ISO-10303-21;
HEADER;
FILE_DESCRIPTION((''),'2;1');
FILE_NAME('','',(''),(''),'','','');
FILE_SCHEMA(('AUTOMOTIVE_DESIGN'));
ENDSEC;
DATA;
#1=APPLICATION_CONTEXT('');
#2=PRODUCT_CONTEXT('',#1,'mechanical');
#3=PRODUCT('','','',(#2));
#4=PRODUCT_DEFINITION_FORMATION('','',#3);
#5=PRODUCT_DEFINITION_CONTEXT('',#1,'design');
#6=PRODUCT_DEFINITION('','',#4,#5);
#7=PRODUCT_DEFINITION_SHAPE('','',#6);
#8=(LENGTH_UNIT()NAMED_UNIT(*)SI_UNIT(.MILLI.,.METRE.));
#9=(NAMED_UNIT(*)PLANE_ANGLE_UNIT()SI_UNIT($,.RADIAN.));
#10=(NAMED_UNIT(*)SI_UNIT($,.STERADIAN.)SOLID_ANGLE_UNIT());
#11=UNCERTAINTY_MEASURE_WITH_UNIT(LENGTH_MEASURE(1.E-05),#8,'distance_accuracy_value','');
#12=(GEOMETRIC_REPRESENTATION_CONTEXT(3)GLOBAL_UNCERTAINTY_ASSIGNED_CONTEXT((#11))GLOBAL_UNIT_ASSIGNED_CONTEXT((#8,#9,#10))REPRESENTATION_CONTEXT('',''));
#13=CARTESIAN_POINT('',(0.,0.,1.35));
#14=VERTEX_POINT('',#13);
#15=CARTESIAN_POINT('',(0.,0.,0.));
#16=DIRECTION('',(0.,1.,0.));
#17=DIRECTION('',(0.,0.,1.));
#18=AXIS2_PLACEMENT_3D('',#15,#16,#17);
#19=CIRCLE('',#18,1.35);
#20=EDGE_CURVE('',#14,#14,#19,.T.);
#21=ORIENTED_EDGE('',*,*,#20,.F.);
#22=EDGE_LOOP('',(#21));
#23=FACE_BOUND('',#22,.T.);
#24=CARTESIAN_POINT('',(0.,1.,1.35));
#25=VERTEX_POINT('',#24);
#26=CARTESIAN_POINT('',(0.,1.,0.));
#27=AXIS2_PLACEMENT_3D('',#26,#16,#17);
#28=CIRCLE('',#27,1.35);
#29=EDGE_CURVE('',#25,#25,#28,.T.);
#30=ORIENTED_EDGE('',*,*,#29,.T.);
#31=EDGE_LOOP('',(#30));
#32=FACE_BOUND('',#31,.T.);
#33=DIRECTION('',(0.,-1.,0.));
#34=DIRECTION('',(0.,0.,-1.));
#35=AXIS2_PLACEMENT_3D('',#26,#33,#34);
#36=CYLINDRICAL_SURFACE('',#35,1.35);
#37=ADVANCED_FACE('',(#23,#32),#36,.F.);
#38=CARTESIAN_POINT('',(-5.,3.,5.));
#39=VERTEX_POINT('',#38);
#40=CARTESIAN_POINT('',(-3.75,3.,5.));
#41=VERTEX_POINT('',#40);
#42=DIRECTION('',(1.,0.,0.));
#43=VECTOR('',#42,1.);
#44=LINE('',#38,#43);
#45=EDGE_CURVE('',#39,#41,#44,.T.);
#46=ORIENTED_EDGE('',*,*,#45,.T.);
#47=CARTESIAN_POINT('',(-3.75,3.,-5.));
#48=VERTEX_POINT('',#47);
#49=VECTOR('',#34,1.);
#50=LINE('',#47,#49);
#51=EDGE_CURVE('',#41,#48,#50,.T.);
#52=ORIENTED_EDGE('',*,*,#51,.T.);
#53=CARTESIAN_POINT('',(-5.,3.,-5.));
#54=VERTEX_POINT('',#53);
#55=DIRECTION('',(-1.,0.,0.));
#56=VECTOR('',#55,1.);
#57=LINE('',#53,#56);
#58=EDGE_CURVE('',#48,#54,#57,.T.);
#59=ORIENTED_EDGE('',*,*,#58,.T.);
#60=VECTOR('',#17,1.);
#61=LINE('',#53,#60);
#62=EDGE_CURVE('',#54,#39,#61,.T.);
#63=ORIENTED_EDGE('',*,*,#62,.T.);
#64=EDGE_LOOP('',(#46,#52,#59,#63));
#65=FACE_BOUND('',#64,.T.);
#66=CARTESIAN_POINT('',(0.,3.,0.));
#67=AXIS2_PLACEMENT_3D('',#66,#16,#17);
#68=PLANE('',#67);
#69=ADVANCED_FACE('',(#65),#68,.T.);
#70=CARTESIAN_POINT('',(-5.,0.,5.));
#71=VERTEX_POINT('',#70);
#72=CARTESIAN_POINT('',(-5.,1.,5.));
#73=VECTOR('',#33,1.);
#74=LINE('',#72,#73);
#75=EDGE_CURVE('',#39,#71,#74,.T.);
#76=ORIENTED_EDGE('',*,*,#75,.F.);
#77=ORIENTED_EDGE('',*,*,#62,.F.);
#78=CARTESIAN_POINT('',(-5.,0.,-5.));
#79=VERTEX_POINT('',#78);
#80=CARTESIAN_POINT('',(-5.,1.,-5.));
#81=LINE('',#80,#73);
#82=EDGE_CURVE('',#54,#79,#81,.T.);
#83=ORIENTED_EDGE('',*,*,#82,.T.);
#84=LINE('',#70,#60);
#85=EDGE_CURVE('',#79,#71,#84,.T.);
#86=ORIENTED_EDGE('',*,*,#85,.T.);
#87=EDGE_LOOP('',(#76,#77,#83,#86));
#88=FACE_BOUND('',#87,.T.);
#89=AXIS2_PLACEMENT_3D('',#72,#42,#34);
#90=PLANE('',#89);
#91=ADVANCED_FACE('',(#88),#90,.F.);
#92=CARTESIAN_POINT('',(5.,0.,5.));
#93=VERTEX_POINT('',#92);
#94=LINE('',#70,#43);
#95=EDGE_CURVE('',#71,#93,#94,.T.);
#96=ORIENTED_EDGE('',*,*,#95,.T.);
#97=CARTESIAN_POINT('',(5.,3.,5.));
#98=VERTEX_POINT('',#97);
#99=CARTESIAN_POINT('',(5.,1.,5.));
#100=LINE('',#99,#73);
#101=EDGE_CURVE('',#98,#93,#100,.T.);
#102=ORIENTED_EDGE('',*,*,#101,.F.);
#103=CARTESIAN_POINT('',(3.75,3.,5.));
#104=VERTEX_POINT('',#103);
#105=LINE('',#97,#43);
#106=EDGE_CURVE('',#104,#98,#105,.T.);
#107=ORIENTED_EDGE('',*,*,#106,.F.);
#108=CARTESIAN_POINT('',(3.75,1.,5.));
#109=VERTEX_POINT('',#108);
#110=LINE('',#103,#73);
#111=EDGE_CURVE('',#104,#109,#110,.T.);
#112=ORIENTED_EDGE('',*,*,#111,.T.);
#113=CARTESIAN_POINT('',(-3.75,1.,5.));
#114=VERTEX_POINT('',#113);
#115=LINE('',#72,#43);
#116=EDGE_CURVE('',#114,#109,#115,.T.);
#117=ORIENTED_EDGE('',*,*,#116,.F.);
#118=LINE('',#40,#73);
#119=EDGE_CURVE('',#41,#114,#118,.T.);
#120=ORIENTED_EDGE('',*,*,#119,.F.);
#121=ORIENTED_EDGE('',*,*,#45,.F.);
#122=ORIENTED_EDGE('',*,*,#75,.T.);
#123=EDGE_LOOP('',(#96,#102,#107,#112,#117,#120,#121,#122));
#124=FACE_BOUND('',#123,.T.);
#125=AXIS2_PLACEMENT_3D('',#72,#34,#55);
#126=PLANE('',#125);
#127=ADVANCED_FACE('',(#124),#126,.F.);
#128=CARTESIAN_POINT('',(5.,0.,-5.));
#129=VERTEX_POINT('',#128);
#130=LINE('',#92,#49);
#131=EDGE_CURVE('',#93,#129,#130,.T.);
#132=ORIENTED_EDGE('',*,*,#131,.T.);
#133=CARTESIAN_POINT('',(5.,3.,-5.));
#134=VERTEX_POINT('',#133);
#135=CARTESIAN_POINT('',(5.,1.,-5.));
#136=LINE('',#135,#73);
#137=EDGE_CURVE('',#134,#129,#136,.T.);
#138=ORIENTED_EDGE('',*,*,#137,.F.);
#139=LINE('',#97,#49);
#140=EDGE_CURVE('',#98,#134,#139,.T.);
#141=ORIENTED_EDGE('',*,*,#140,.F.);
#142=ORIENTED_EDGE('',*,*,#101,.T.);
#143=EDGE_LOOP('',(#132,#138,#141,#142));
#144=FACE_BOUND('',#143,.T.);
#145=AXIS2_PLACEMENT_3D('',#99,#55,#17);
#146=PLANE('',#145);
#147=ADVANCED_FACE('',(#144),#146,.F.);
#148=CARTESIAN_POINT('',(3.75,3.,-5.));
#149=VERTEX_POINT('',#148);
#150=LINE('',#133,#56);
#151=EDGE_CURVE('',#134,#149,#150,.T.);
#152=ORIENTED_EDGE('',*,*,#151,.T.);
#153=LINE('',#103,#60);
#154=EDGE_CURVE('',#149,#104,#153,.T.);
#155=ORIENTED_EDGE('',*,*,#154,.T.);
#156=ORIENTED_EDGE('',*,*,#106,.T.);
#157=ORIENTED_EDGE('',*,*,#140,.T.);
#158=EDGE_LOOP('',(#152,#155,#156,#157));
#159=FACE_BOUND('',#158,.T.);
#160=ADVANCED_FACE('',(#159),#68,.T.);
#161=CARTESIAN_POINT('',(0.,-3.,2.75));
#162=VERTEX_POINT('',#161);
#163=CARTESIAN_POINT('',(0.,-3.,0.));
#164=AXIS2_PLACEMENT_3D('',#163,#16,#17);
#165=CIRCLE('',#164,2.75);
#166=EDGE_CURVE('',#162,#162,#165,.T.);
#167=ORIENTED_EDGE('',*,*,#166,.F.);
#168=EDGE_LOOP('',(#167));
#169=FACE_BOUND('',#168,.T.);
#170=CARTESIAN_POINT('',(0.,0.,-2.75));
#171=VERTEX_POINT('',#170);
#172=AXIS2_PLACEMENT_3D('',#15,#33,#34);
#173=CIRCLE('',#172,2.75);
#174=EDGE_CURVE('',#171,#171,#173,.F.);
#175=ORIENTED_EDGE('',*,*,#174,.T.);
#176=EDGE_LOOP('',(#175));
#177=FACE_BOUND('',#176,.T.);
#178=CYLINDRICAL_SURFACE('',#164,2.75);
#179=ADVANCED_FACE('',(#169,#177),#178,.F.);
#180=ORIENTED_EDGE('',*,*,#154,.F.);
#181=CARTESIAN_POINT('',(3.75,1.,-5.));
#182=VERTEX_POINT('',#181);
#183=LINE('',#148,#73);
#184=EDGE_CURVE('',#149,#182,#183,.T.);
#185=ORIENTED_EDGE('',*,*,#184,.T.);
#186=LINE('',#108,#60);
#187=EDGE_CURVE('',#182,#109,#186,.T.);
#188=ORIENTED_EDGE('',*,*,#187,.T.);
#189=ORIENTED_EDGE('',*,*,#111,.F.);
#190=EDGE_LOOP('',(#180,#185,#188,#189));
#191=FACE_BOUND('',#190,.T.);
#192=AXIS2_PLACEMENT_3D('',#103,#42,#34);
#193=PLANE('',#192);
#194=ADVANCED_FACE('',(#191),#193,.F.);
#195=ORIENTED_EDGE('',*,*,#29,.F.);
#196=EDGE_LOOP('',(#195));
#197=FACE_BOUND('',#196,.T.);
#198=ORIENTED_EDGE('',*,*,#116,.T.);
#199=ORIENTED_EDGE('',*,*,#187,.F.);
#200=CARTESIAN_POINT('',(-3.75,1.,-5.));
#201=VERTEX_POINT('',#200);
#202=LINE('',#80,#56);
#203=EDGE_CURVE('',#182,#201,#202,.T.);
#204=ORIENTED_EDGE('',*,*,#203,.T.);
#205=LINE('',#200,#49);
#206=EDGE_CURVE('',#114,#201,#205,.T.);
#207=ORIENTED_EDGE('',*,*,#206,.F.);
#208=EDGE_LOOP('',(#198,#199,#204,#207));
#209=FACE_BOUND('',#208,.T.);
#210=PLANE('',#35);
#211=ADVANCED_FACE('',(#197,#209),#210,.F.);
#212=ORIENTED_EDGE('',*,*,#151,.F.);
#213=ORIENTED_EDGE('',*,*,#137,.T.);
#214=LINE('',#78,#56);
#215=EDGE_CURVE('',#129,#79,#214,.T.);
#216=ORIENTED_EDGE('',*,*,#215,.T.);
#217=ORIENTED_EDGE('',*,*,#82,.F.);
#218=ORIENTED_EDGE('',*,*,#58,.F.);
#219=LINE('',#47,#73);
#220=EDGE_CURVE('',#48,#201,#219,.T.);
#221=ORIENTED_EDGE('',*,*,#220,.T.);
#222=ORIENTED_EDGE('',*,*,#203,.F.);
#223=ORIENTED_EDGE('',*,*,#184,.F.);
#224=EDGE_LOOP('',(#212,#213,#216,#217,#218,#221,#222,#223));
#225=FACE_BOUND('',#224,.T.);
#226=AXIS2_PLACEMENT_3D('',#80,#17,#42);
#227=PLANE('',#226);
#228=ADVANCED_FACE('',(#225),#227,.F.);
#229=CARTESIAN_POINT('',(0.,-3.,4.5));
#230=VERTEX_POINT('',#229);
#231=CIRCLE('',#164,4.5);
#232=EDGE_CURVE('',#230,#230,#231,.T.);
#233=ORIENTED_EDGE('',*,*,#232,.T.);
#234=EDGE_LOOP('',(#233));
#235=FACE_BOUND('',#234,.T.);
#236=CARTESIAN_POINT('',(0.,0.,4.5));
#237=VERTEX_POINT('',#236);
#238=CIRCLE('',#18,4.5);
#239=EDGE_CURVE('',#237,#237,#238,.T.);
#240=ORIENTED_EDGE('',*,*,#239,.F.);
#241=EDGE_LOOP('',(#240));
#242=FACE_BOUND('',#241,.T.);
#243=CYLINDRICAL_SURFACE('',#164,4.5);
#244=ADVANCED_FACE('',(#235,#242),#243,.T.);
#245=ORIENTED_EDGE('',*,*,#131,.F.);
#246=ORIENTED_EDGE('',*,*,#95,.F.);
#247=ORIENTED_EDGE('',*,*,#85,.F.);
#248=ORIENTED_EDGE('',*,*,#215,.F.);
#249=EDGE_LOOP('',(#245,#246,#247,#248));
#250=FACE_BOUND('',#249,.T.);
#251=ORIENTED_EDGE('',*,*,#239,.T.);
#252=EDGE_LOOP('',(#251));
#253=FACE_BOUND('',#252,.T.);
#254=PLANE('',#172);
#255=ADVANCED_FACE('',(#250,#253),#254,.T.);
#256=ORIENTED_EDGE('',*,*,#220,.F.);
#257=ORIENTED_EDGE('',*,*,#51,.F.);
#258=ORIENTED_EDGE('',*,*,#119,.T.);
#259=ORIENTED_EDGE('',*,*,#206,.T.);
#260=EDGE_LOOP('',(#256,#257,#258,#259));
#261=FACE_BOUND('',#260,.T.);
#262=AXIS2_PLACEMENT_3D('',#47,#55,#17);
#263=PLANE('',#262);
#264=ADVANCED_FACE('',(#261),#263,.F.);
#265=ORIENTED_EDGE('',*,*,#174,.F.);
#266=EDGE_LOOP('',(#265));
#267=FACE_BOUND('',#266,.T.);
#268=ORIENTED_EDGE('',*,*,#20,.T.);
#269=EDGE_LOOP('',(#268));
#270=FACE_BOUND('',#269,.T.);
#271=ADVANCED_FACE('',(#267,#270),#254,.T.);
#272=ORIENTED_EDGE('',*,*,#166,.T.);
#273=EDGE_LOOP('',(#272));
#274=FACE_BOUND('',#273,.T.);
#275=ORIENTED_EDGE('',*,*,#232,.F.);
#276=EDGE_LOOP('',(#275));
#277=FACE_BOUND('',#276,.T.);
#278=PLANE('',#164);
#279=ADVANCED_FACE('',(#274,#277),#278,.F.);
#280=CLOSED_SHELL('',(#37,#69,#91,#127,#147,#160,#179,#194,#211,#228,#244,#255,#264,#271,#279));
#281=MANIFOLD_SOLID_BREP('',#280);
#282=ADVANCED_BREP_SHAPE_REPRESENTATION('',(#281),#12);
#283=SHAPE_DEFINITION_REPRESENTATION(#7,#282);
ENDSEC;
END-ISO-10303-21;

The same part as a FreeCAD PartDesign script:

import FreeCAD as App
import Part
import Sketcher
from FreeCAD import Vector
Q = App.Units.Quantity

doc = App.newDocument("Part")
body = doc.addObject("PartDesign::Body", "Body")

# Sketch on XZ plane
sketch1 = body.newObject("Sketcher::SketchObject", "Sketch")
sketch1.AttachmentSupport = (doc.getObject("XZ_Plane"), [""])
sketch1.MapMode = "FlatFace"
sketch1.addGeometry([
    Part.Circle(Vector(0, 0, 0), Vector(0, 0, 1), 4.5),
    Part.Circle(Vector(0, 0, 0), Vector(0, 0, 1), 2.8),
], False)
sketch1.addConstraint([
    Sketcher.Constraint("Coincident", 0, 3, -1, 1),
    Sketcher.Constraint("Coincident", 1, 3, -1, 1),
    Sketcher.Constraint("Diameter", 0, Q("9 mm")),
    Sketcher.Constraint("Diameter", 1, Q("5.5 mm")),
])
pad1 = body.newObject("PartDesign::Pad", "Pad")
pad1.Profile = sketch1
pad1.Length = 3

# Sketch on XZ plane
sketch2 = body.newObject("Sketcher::SketchObject", "Sketch001")
sketch2.AttachmentSupport = (doc.getObject("XZ_Plane"), [""])
sketch2.MapMode = "FlatFace"
sketch2.addGeometry([
    Part.LineSegment(Vector(-5, -5, 0), Vector(-5, 5, 0)),  # 0
    Part.LineSegment(Vector(-5, 5, 0), Vector(5, 5, 0)),  # 1
    Part.LineSegment(Vector(5, 5, 0), Vector(5, -5, 0)),  # 2
    Part.LineSegment(Vector(5, -5, 0), Vector(-5, -5, 0)),  # 3
    Part.Circle(Vector(0, 0, 0), Vector(0, 0, 1), 1.4),  # 4
], False)
sketch2.addConstraint([
    Sketcher.Constraint("Coincident", 0, 2, 1, 1),
    Sketcher.Constraint("Coincident", 1, 2, 2, 1),
    Sketcher.Constraint("Coincident", 2, 2, 3, 1),
    Sketcher.Constraint("Coincident", 3, 2, 0, 1),
    Sketcher.Constraint("Vertical", 0),
    Sketcher.Constraint("Horizontal", 1),
    Sketcher.Constraint("Vertical", 2),
    Sketcher.Constraint("Horizontal", 3),
    Sketcher.Constraint("Coincident", 4, 3, -1, 1),
    Sketcher.Constraint("Symmetric", 0, 2, 2, 2, -1, 1),
    Sketcher.Constraint("Equal", 3, 0),
    Sketcher.Constraint("Diameter", 4, Q("2.7 mm")),
    Sketcher.Constraint("DistanceX", 1, 1, 1, 2, Q("10 mm")),
])
pad2 = body.newObject("PartDesign::Pad", "Pad001")
pad2.Profile = sketch2
pad2.Length = 1
pad2.Reversed = True

# Sketch on XZ plane
sketch3 = body.newObject("Sketcher::SketchObject", "Sketch002")
sketch3.AttachmentSupport = (doc.getObject("XZ_Plane"), [""])
sketch3.MapMode = "FlatFace"
sketch3.AttachmentOffset = App.Placement(Vector(0, 0, -1), App.Rotation())
sketch3.addGeometry([
    Part.LineSegment(Vector(-5, -5, 0), Vector(-5, 5, 0)),  # 0
    Part.LineSegment(Vector(-5, 5, 0), Vector(-3.8, 5, 0)),  # 1
    Part.LineSegment(Vector(-3.8, 5, 0), Vector(-3.8, -5, 0)),  # 2
    Part.LineSegment(Vector(-3.8, -5, 0), Vector(-5, -5, 0)),  # 3
    Part.LineSegment(Vector(3.8, -5, 0), Vector(3.8, 5, 0)),  # 4
    Part.LineSegment(Vector(3.8, 5, 0), Vector(5, 5, 0)),  # 5
    Part.LineSegment(Vector(5, 5, 0), Vector(5, -5, 0)),  # 6
    Part.LineSegment(Vector(5, -5, 0), Vector(3.8, -5, 0)),  # 7
], False)
sketch3.addConstraint([
    Sketcher.Constraint("Coincident", 0, 2, 1, 1),
    Sketcher.Constraint("Coincident", 1, 2, 2, 1),
    Sketcher.Constraint("Coincident", 2, 2, 3, 1),
    Sketcher.Constraint("Coincident", 3, 2, 0, 1),
    Sketcher.Constraint("Coincident", 4, 2, 5, 1),
    Sketcher.Constraint("Coincident", 5, 2, 6, 1),
    Sketcher.Constraint("Coincident", 6, 2, 7, 1),
    Sketcher.Constraint("Coincident", 7, 2, 4, 1),
    Sketcher.Constraint("Vertical", 0),
    Sketcher.Constraint("Horizontal", 1),
    Sketcher.Constraint("Vertical", 2),
    Sketcher.Constraint("Horizontal", 3),
    Sketcher.Constraint("Vertical", 4),
    Sketcher.Constraint("Horizontal", 5),
    Sketcher.Constraint("Vertical", 6),
    Sketcher.Constraint("Horizontal", 7),
    Sketcher.Constraint("Symmetric", 2, 2, 4, 2, -1, 1),
    Sketcher.Constraint("Symmetric", 0, 2, 6, 2, -1, 1),
    Sketcher.Constraint("Horizontal", 1, 2, 4, 2),
    Sketcher.Constraint("DistanceY", 0, 1, 0, 2, Q("10 mm")),
    Sketcher.Constraint("DistanceX", 0, 2, -1, 1, Q("5 mm")),
    Sketcher.Constraint("DistanceX", 1, 1, 1, 2, Q("1.25 mm")),
])
pad3 = body.newObject("PartDesign::Pad", "Pad002")
pad3.Profile = sketch3
pad3.Length = 2
pad3.Reversed = True

doc.recompute()
